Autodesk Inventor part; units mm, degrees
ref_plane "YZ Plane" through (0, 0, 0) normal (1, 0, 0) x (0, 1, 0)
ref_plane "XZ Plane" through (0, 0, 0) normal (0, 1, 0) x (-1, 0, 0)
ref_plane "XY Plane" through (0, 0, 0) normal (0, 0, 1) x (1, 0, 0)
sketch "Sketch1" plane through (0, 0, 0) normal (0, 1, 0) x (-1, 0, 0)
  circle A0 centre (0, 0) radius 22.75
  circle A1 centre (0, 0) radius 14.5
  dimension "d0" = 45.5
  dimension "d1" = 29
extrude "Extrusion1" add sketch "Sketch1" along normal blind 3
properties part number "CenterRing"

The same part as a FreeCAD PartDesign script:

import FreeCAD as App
import Part
import Sketcher
Q = App.Units.Quantity

doc = App.newDocument("Part")
body = doc.addObject("PartDesign::Body", "Body")

# Sketch on XZ plane
sketch1 = body.newObject("Sketcher::SketchObject", "Sketch")
sketch1.AttachmentSupport = (doc.getObject("XZ_Plane"), [""])
sketch1.MapMode = "FlatFace"
sketch1.addGeometry([
    Part.Circle(App.Vector(0, 0, 0), App.Vector(0, 0, 1), 23),
    Part.Circle(App.Vector(0, 0, 0), App.Vector(0, 0, 1), 14),
], False)
sketch1.addConstraint([
    Sketcher.Constraint("Coincident", 0, 3, -1, 1),
    Sketcher.Constraint("Coincident", 1, 3, -1, 1),
    Sketcher.Constraint("Diameter", 1, Q("29 mm")),
    Sketcher.Constraint("Diameter", 0, Q("45.5 mm")),
])
pad1 = body.newObject("PartDesign::Pad", "Pad")
pad1.Profile = sketch1
pad1.Length = 3
pad1.Reversed = True

doc.recompute()
